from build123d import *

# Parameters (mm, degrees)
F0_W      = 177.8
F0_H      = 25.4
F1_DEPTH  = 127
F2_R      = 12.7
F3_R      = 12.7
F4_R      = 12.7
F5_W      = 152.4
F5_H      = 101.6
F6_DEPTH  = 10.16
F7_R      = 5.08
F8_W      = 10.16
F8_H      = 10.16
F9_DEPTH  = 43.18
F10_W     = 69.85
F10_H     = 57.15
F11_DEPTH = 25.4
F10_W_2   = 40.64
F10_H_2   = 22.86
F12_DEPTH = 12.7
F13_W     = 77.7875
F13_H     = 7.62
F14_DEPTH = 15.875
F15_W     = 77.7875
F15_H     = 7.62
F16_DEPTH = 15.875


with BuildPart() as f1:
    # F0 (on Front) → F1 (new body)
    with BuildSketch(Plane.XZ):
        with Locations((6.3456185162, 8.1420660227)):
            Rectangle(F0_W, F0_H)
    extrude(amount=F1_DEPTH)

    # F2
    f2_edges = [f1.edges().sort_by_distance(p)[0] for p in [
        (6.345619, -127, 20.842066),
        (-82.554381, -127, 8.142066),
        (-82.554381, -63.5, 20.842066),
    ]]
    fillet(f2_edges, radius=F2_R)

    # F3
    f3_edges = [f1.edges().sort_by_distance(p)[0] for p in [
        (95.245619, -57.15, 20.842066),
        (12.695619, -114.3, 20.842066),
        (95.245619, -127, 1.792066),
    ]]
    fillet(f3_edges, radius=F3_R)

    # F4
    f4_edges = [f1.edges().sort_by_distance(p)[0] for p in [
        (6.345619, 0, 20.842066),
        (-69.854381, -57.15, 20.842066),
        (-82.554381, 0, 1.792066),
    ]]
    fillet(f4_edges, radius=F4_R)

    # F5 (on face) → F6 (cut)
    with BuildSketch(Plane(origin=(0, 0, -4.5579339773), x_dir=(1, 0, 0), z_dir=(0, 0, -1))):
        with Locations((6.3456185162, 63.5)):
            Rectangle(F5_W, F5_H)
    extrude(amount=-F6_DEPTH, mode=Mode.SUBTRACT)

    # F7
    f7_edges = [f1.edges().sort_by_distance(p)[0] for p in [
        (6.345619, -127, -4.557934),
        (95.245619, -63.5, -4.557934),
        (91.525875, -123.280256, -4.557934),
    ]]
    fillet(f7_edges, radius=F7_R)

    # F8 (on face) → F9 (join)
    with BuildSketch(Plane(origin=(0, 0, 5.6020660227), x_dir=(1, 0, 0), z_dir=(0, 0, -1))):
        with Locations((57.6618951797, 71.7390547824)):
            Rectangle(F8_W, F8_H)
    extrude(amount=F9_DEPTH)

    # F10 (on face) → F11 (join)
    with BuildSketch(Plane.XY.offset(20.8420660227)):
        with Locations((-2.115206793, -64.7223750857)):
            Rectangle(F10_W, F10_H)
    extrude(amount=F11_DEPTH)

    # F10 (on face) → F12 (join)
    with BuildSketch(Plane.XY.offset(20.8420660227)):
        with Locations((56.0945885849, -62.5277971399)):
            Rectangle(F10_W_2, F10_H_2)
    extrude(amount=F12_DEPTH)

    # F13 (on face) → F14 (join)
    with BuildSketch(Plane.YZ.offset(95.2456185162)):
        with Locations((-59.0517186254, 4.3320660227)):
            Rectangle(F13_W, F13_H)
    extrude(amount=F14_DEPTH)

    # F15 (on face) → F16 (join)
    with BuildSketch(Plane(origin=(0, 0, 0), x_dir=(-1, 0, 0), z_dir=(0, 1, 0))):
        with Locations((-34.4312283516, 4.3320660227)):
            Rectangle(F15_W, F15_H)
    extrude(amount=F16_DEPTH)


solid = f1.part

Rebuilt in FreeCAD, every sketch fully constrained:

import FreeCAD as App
import Part
import Sketcher
from FreeCAD import Vector
Q = App.Units.Quantity


def edges_at(feature, points):
    """Names of the edges that pass closest to the given points."""
    edges = feature.Shape.Edges
    near = lambda p: min(range(len(edges)), key=lambda i: edges[i].distToShape(Part.Vertex(*p))[0])
    return sorted({f"Edge{near(p) + 1}" for p in points})

doc = App.newDocument("Part")
body = doc.addObject("PartDesign::Body", "Body")

# Sketch on XZ plane
sketch1 = body.newObject("Sketcher::SketchObject", "Sketch")
sketch1.AttachmentSupport = (doc.getObject("XZ_Plane"), [""])
sketch1.MapMode = "FlatFace"
sketch1.addGeometry([
    Part.LineSegment(Vector(-83, 21, 0), Vector(-83, -5, 0)),
    Part.LineSegment(Vector(-83, -5, 0), Vector(95, -5, 0)),
    Part.LineSegment(Vector(95, -5, 0), Vector(95, 21, 0)),
    Part.LineSegment(Vector(95, 21, 0), Vector(-83, 21, 0)),
], False)
sketch1.addConstraint([
    Sketcher.Constraint("Coincident", 0, 2, 1, 1),
    Sketcher.Constraint("Coincident", 1, 2, 2, 1),
    Sketcher.Constraint("Coincident", 2, 2, 3, 1),
    Sketcher.Constraint("Coincident", 3, 2, 0, 1),
    Sketcher.Constraint("Vertical", 0),
    Sketcher.Constraint("Horizontal", 1),
    Sketcher.Constraint("Vertical", 2),
    Sketcher.Constraint("Horizontal", 3),
    Sketcher.Constraint("DistanceX", 1, 1, 1, 2, Q("7 in")),
    Sketcher.Constraint("DistanceY", 0, 2, 0, 1, Q("1 in")),
    Sketcher.Constraint("DistanceX", 0, 2, -1, 1, 82.554381),
    Sketcher.Constraint("DistanceY", 0, 2, -1, 1, 4.557934),
])
pad1 = body.newObject("PartDesign::Pad", "Pad")
pad1.Profile = sketch1
pad1.Length = Q("5 in")
doc.recompute()

fillet = body.newObject("PartDesign::Fillet", "Fillet")
fillet.Base = (pad1, edges_at(pad1, [(6.346, -127, 20.842), (-82.554, -127, 8.142), (-82.554, -63.5, 20.842)]))
fillet.Radius = Q("0.5 in")
doc.recompute()

fillet2 = body.newObject("PartDesign::Fillet", "Fillet001")
fillet2.Base = (fillet, edges_at(fillet, [(95.246, -57.15, 20.842), (12.696, -114.3, 20.842), (95.246, -127, 1.792)]))
fillet2.Radius = Q("0.5 in")
doc.recompute()

fillet3 = body.newObject("PartDesign::Fillet", "Fillet002")
fillet3.Base = (fillet2, edges_at(fillet2, [(6.346, 0, 20.842), (-69.854, -57.15, 20.842), (-82.554, 0, 1.792)]))
fillet3.Radius = Q("0.5 in")

# Sketch on XY plane
sketch2 = body.newObject("Sketcher::SketchObject", "Sketch001")
sketch2.AttachmentSupport = (doc.getObject("XY_Plane"), [""])
sketch2.MapMode = "FlatFace"
sketch2.AttachmentOffset = App.Placement(Vector(0, 0, -4.557934), App.Rotation())
sketch2.addGeometry([
    Part.LineSegment(Vector(-70, -114, 0), Vector(-70, -13, 0)),
    Part.LineSegment(Vector(-70, -13, 0), Vector(83, -13, 0)),
    Part.LineSegment(Vector(83, -13, 0), Vector(83, -114, 0)),
    Part.LineSegment(Vector(83, -114, 0), Vector(-70, -114, 0)),
], False)
sketch2.addConstraint([
    Sketcher.Constraint("Coincident", 0, 2, 1, 1),
    Sketcher.Constraint("Coincident", 1, 2, 2, 1),
    Sketcher.Constraint("Coincident", 2, 2, 3, 1),
    Sketcher.Constraint("Coincident", 3, 2, 0, 1),
    Sketcher.Constraint("Vertical", 0),
    Sketcher.Constraint("Horizontal", 1),
    Sketcher.Constraint("Vertical", 2),
    Sketcher.Constraint("Horizontal", 3),
    Sketcher.Constraint("DistanceX", 1, 1, 1, 2, Q("6 in")),
    Sketcher.Constraint("DistanceY", 0, 1, 0, 2, Q("4 in")),
    Sketcher.Constraint("DistanceY", 0, 2, -1, 1, Q("0.5 in")),
    Sketcher.Constraint("DistanceX", 0, 2, -1, 1, 69.854381),
])
pocket1 = body.newObject("PartDesign::Pocket", "Pocket")
pocket1.Profile = sketch2
pocket1.Length = Q("0.4 in")
pocket1.Reversed = True
doc.recompute()

fillet4 = body.newObject("PartDesign::Fillet", "Fillet003")
fillet4.Base = (pocket1, edges_at(pocket1, [(6.346, -127, -4.558), (95.246, -63.5, -4.558), (91.526, -123.28, -4.558)]))
fillet4.Radius = Q("0.2 in")

# Sketch on XY plane
sketch3 = body.newObject("Sketcher::SketchObject", "Sketch002")
sketch3.AttachmentSupport = (doc.getObject("XY_Plane"), [""])
sketch3.MapMode = "FlatFace"
sketch3.AttachmentOffset = App.Placement(Vector(0, 0, 5.602066), App.Rotation())
sketch3.addGeometry([
    Part.LineSegment(Vector(53, -77, 0), Vector(53, -67, 0)),
    Part.LineSegment(Vector(53, -67, 0), Vector(63, -67, 0)),
    Part.LineSegment(Vector(63, -67, 0), Vector(63, -77, 0)),
    Part.LineSegment(Vector(63, -77, 0), Vector(53, -77, 0)),
], False)
sketch3.addConstraint([
    Sketcher.Constraint("Coincident", 0, 2, 1, 1),
    Sketcher.Constraint("Coincident", 1, 2, 2, 1),
    Sketcher.Constraint("Coincident", 2, 2, 3, 1),
    Sketcher.Constraint("Coincident", 3, 2, 0, 1),
    Sketcher.Constraint("Vertical", 0),
    Sketcher.Constraint("Horizontal", 1),
    Sketcher.Constraint("Vertical", 2),
    Sketcher.Constraint("Horizontal", 3),
    Sketcher.Constraint("Equal", 3, 0),
    Sketcher.Constraint("DistanceX", 1, 1, 1, 2, Q("0.4 in")),
    Sketcher.Constraint("DistanceX", -1, 1, 0, 2, 52.581895),
    Sketcher.Constraint("DistanceY", 0, 2, -1, 1, 66.659055),
])
pad2 = body.newObject("PartDesign::Pad", "Pad001")
pad2.Profile = sketch3
pad2.Length = Q("1.7 in")
pad2.Reversed = True

# Sketch on XY plane
sketch4 = body.newObject("Sketcher::SketchObject", "Sketch003")
sketch4.AttachmentSupport = (doc.getObject("XY_Plane"), [""])
sketch4.MapMode = "FlatFace"
sketch4.AttachmentOffset = App.Placement(Vector(0, 0, 20.842066), App.Rotation())
sketch4.addGeometry([
    Part.LineSegment(Vector(-37, -36, 0), Vector(-37, -93, 0)),
    Part.LineSegment(Vector(-37, -93, 0), Vector(33, -93, 0)),
    Part.LineSegment(Vector(33, -93, 0), Vector(33, -36, 0)),
    Part.LineSegment(Vector(33, -36, 0), Vector(-37, -36, 0)),
], False)
sketch4.addConstraint([
    Sketcher.Constraint("Coincident", 0, 2, 1, 1),
    Sketcher.Constraint("Coincident", 1, 2, 2, 1),
    Sketcher.Constraint("Coincident", 2, 2, 3, 1),
    Sketcher.Constraint("Coincident", 3, 2, 0, 1),
    Sketcher.Constraint("Vertical", 0),
    Sketcher.Constraint("Horizontal", 1),
    Sketcher.Constraint("Vertical", 2),
    Sketcher.Constraint("Horizontal", 3),
    Sketcher.Constraint("DistanceX", 1, 1, 1, 2, Q("2.75 in")),
    Sketcher.Constraint("DistanceY", 0, 2, 0, 1, Q("2.25 in")),
    Sketcher.Constraint("DistanceX", 0, 2, -1, 1, 37.040207),
    Sketcher.Constraint("DistanceY", 0, 2, -1, 1, 93.297375),
])
pad3 = body.newObject("PartDesign::Pad", "Pad002")
pad3.Profile = sketch4
pad3.Length = Q("1 in")

# Sketch on XY plane
sketch5 = body.newObject("Sketcher::SketchObject", "Sketch004")
sketch5.AttachmentSupport = (doc.getObject("XY_Plane"), [""])
sketch5.MapMode = "FlatFace"
sketch5.AttachmentOffset = App.Placement(Vector(0, 0, 20.842066), App.Rotation())
sketch5.addGeometry([
    Part.LineSegment(Vector(36, -51, 0), Vector(36, -74, 0)),
    Part.LineSegment(Vector(36, -74, 0), Vector(76, -74, 0)),
    Part.LineSegment(Vector(76, -74, 0), Vector(76, -51, 0)),
    Part.LineSegment(Vector(76, -51, 0), Vector(36, -51, 0)),
], False)
sketch5.addConstraint([
    Sketcher.Constraint("Coincident", 0, 2, 1, 1),
    Sketcher.Constraint("Coincident", 1, 2, 2, 1),
    Sketcher.Constraint("Coincident", 2, 2, 3, 1),
    Sketcher.Constraint("Coincident", 3, 2, 0, 1),
    Sketcher.Constraint("Vertical", 0),
    Sketcher.Constraint("Horizontal", 1),
    Sketcher.Constraint("Vertical", 2),
    Sketcher.Constraint("Horizontal", 3),
    Sketcher.Constraint("DistanceX", 1, 1, 1, 2, Q("1.6 in")),
    Sketcher.Constraint("DistanceY", 0, 2, 0, 1, Q("0.9 in")),
    Sketcher.Constraint("DistanceX", -1, 1, 0, 2, 35.774589),
    Sketcher.Constraint("DistanceY", 0, 2, -1, 1, 73.957797),
])
pad4 = body.newObject("PartDesign::Pad", "Pad003")
pad4.Profile = sketch5
pad4.Length = Q("0.5 in")

# Sketch on YZ plane
sketch6 = body.newObject("Sketcher::SketchObject", "Sketch005")
sketch6.AttachmentSupport = (doc.getObject("YZ_Plane"), [""])
sketch6.MapMode = "FlatFace"
sketch6.AttachmentOffset = App.Placement(Vector(0, 0, 95.245619), App.Rotation())
sketch6.addGeometry([
    Part.LineSegment(Vector(-98, 8, 0), Vector(-98, 1, 0)),
    Part.LineSegment(Vector(-98, 1, 0), Vector(-20, 1, 0)),
    Part.LineSegment(Vector(-20, 1, 0), Vector(-20, 8, 0)),
    Part.LineSegment(Vector(-20, 8, 0), Vector(-98, 8, 0)),
], False)
sketch6.addConstraint([
    Sketcher.Constraint("Coincident", 0, 2, 1, 1),
    Sketcher.Constraint("Coincident", 1, 2, 2, 1),
    Sketcher.Constraint("Coincident", 2, 2, 3, 1),
    Sketcher.Constraint("Coincident", 3, 2, 0, 1),
    Sketcher.Constraint("Vertical", 0),
    Sketcher.Constraint("Horizontal", 1),
    Sketcher.Constraint("Vertical", 2),
    Sketcher.Constraint("Horizontal", 3),
    Sketcher.Constraint("DistanceY", 0, 2, 0, 1, Q("0.3 in")),
    Sketcher.Constraint("DistanceX", 1, 1, 1, 2, Q("3.0625 in")),
    Sketcher.Constraint("DistanceX", 0, 2, -1, 1, 97.945469),
    Sketcher.Constraint("DistanceY", -1, 1, 0, 2, 0.522066),
])
pad5 = body.newObject("PartDesign::Pad", "Pad004")
pad5.Profile = sketch6
pad5.Length = Q("0.625 in")

# Sketch on XZ plane
sketch7 = body.newObject("Sketcher::SketchObject", "Sketch006")
sketch7.AttachmentSupport = (doc.getObject("XZ_Plane"), [""])
sketch7.MapMode = "FlatFace"
sketch7.addGeometry([
    Part.LineSegment(Vector(73, 8, 0), Vector(73, 1, 0)),
    Part.LineSegment(Vector(73, 1, 0), Vector(-4, 1, 0)),
    Part.LineSegment(Vector(-4, 1, 0), Vector(-4, 8, 0)),
    Part.LineSegment(Vector(-4, 8, 0), Vector(73, 8, 0)),
], False)
sketch7.addConstraint([
    Sketcher.Constraint("Coincident", 0, 2, 1, 1),
    Sketcher.Constraint("Coincident", 1, 2, 2, 1),
    Sketcher.Constraint("Coincident", 2, 2, 3, 1),
    Sketcher.Constraint("Coincident", 3, 2, 0, 1),
    Sketcher.Constraint("Vertical", 0),
    Sketcher.Constraint("Horizontal", 1),
    Sketcher.Constraint("Vertical", 2),
    Sketcher.Constraint("Horizontal", 3),
    Sketcher.Constraint("DistanceY", 0, 2, 0, 1, Q("0.3 in")),
    Sketcher.Constraint("DistanceX", 1, 2, 1, 1, Q("3.0625 in")),
    Sketcher.Constraint("DistanceX", -1, 1, 0, 2, 73.324978),
    Sketcher.Constraint("DistanceY", -1, 1, 0, 2, 0.522066),
])
pad6 = body.newObject("PartDesign::Pad", "Pad005")
pad6.Profile = sketch7
pad6.Length = Q("0.625 in")
pad6.Reversed = True

doc.recompute()
